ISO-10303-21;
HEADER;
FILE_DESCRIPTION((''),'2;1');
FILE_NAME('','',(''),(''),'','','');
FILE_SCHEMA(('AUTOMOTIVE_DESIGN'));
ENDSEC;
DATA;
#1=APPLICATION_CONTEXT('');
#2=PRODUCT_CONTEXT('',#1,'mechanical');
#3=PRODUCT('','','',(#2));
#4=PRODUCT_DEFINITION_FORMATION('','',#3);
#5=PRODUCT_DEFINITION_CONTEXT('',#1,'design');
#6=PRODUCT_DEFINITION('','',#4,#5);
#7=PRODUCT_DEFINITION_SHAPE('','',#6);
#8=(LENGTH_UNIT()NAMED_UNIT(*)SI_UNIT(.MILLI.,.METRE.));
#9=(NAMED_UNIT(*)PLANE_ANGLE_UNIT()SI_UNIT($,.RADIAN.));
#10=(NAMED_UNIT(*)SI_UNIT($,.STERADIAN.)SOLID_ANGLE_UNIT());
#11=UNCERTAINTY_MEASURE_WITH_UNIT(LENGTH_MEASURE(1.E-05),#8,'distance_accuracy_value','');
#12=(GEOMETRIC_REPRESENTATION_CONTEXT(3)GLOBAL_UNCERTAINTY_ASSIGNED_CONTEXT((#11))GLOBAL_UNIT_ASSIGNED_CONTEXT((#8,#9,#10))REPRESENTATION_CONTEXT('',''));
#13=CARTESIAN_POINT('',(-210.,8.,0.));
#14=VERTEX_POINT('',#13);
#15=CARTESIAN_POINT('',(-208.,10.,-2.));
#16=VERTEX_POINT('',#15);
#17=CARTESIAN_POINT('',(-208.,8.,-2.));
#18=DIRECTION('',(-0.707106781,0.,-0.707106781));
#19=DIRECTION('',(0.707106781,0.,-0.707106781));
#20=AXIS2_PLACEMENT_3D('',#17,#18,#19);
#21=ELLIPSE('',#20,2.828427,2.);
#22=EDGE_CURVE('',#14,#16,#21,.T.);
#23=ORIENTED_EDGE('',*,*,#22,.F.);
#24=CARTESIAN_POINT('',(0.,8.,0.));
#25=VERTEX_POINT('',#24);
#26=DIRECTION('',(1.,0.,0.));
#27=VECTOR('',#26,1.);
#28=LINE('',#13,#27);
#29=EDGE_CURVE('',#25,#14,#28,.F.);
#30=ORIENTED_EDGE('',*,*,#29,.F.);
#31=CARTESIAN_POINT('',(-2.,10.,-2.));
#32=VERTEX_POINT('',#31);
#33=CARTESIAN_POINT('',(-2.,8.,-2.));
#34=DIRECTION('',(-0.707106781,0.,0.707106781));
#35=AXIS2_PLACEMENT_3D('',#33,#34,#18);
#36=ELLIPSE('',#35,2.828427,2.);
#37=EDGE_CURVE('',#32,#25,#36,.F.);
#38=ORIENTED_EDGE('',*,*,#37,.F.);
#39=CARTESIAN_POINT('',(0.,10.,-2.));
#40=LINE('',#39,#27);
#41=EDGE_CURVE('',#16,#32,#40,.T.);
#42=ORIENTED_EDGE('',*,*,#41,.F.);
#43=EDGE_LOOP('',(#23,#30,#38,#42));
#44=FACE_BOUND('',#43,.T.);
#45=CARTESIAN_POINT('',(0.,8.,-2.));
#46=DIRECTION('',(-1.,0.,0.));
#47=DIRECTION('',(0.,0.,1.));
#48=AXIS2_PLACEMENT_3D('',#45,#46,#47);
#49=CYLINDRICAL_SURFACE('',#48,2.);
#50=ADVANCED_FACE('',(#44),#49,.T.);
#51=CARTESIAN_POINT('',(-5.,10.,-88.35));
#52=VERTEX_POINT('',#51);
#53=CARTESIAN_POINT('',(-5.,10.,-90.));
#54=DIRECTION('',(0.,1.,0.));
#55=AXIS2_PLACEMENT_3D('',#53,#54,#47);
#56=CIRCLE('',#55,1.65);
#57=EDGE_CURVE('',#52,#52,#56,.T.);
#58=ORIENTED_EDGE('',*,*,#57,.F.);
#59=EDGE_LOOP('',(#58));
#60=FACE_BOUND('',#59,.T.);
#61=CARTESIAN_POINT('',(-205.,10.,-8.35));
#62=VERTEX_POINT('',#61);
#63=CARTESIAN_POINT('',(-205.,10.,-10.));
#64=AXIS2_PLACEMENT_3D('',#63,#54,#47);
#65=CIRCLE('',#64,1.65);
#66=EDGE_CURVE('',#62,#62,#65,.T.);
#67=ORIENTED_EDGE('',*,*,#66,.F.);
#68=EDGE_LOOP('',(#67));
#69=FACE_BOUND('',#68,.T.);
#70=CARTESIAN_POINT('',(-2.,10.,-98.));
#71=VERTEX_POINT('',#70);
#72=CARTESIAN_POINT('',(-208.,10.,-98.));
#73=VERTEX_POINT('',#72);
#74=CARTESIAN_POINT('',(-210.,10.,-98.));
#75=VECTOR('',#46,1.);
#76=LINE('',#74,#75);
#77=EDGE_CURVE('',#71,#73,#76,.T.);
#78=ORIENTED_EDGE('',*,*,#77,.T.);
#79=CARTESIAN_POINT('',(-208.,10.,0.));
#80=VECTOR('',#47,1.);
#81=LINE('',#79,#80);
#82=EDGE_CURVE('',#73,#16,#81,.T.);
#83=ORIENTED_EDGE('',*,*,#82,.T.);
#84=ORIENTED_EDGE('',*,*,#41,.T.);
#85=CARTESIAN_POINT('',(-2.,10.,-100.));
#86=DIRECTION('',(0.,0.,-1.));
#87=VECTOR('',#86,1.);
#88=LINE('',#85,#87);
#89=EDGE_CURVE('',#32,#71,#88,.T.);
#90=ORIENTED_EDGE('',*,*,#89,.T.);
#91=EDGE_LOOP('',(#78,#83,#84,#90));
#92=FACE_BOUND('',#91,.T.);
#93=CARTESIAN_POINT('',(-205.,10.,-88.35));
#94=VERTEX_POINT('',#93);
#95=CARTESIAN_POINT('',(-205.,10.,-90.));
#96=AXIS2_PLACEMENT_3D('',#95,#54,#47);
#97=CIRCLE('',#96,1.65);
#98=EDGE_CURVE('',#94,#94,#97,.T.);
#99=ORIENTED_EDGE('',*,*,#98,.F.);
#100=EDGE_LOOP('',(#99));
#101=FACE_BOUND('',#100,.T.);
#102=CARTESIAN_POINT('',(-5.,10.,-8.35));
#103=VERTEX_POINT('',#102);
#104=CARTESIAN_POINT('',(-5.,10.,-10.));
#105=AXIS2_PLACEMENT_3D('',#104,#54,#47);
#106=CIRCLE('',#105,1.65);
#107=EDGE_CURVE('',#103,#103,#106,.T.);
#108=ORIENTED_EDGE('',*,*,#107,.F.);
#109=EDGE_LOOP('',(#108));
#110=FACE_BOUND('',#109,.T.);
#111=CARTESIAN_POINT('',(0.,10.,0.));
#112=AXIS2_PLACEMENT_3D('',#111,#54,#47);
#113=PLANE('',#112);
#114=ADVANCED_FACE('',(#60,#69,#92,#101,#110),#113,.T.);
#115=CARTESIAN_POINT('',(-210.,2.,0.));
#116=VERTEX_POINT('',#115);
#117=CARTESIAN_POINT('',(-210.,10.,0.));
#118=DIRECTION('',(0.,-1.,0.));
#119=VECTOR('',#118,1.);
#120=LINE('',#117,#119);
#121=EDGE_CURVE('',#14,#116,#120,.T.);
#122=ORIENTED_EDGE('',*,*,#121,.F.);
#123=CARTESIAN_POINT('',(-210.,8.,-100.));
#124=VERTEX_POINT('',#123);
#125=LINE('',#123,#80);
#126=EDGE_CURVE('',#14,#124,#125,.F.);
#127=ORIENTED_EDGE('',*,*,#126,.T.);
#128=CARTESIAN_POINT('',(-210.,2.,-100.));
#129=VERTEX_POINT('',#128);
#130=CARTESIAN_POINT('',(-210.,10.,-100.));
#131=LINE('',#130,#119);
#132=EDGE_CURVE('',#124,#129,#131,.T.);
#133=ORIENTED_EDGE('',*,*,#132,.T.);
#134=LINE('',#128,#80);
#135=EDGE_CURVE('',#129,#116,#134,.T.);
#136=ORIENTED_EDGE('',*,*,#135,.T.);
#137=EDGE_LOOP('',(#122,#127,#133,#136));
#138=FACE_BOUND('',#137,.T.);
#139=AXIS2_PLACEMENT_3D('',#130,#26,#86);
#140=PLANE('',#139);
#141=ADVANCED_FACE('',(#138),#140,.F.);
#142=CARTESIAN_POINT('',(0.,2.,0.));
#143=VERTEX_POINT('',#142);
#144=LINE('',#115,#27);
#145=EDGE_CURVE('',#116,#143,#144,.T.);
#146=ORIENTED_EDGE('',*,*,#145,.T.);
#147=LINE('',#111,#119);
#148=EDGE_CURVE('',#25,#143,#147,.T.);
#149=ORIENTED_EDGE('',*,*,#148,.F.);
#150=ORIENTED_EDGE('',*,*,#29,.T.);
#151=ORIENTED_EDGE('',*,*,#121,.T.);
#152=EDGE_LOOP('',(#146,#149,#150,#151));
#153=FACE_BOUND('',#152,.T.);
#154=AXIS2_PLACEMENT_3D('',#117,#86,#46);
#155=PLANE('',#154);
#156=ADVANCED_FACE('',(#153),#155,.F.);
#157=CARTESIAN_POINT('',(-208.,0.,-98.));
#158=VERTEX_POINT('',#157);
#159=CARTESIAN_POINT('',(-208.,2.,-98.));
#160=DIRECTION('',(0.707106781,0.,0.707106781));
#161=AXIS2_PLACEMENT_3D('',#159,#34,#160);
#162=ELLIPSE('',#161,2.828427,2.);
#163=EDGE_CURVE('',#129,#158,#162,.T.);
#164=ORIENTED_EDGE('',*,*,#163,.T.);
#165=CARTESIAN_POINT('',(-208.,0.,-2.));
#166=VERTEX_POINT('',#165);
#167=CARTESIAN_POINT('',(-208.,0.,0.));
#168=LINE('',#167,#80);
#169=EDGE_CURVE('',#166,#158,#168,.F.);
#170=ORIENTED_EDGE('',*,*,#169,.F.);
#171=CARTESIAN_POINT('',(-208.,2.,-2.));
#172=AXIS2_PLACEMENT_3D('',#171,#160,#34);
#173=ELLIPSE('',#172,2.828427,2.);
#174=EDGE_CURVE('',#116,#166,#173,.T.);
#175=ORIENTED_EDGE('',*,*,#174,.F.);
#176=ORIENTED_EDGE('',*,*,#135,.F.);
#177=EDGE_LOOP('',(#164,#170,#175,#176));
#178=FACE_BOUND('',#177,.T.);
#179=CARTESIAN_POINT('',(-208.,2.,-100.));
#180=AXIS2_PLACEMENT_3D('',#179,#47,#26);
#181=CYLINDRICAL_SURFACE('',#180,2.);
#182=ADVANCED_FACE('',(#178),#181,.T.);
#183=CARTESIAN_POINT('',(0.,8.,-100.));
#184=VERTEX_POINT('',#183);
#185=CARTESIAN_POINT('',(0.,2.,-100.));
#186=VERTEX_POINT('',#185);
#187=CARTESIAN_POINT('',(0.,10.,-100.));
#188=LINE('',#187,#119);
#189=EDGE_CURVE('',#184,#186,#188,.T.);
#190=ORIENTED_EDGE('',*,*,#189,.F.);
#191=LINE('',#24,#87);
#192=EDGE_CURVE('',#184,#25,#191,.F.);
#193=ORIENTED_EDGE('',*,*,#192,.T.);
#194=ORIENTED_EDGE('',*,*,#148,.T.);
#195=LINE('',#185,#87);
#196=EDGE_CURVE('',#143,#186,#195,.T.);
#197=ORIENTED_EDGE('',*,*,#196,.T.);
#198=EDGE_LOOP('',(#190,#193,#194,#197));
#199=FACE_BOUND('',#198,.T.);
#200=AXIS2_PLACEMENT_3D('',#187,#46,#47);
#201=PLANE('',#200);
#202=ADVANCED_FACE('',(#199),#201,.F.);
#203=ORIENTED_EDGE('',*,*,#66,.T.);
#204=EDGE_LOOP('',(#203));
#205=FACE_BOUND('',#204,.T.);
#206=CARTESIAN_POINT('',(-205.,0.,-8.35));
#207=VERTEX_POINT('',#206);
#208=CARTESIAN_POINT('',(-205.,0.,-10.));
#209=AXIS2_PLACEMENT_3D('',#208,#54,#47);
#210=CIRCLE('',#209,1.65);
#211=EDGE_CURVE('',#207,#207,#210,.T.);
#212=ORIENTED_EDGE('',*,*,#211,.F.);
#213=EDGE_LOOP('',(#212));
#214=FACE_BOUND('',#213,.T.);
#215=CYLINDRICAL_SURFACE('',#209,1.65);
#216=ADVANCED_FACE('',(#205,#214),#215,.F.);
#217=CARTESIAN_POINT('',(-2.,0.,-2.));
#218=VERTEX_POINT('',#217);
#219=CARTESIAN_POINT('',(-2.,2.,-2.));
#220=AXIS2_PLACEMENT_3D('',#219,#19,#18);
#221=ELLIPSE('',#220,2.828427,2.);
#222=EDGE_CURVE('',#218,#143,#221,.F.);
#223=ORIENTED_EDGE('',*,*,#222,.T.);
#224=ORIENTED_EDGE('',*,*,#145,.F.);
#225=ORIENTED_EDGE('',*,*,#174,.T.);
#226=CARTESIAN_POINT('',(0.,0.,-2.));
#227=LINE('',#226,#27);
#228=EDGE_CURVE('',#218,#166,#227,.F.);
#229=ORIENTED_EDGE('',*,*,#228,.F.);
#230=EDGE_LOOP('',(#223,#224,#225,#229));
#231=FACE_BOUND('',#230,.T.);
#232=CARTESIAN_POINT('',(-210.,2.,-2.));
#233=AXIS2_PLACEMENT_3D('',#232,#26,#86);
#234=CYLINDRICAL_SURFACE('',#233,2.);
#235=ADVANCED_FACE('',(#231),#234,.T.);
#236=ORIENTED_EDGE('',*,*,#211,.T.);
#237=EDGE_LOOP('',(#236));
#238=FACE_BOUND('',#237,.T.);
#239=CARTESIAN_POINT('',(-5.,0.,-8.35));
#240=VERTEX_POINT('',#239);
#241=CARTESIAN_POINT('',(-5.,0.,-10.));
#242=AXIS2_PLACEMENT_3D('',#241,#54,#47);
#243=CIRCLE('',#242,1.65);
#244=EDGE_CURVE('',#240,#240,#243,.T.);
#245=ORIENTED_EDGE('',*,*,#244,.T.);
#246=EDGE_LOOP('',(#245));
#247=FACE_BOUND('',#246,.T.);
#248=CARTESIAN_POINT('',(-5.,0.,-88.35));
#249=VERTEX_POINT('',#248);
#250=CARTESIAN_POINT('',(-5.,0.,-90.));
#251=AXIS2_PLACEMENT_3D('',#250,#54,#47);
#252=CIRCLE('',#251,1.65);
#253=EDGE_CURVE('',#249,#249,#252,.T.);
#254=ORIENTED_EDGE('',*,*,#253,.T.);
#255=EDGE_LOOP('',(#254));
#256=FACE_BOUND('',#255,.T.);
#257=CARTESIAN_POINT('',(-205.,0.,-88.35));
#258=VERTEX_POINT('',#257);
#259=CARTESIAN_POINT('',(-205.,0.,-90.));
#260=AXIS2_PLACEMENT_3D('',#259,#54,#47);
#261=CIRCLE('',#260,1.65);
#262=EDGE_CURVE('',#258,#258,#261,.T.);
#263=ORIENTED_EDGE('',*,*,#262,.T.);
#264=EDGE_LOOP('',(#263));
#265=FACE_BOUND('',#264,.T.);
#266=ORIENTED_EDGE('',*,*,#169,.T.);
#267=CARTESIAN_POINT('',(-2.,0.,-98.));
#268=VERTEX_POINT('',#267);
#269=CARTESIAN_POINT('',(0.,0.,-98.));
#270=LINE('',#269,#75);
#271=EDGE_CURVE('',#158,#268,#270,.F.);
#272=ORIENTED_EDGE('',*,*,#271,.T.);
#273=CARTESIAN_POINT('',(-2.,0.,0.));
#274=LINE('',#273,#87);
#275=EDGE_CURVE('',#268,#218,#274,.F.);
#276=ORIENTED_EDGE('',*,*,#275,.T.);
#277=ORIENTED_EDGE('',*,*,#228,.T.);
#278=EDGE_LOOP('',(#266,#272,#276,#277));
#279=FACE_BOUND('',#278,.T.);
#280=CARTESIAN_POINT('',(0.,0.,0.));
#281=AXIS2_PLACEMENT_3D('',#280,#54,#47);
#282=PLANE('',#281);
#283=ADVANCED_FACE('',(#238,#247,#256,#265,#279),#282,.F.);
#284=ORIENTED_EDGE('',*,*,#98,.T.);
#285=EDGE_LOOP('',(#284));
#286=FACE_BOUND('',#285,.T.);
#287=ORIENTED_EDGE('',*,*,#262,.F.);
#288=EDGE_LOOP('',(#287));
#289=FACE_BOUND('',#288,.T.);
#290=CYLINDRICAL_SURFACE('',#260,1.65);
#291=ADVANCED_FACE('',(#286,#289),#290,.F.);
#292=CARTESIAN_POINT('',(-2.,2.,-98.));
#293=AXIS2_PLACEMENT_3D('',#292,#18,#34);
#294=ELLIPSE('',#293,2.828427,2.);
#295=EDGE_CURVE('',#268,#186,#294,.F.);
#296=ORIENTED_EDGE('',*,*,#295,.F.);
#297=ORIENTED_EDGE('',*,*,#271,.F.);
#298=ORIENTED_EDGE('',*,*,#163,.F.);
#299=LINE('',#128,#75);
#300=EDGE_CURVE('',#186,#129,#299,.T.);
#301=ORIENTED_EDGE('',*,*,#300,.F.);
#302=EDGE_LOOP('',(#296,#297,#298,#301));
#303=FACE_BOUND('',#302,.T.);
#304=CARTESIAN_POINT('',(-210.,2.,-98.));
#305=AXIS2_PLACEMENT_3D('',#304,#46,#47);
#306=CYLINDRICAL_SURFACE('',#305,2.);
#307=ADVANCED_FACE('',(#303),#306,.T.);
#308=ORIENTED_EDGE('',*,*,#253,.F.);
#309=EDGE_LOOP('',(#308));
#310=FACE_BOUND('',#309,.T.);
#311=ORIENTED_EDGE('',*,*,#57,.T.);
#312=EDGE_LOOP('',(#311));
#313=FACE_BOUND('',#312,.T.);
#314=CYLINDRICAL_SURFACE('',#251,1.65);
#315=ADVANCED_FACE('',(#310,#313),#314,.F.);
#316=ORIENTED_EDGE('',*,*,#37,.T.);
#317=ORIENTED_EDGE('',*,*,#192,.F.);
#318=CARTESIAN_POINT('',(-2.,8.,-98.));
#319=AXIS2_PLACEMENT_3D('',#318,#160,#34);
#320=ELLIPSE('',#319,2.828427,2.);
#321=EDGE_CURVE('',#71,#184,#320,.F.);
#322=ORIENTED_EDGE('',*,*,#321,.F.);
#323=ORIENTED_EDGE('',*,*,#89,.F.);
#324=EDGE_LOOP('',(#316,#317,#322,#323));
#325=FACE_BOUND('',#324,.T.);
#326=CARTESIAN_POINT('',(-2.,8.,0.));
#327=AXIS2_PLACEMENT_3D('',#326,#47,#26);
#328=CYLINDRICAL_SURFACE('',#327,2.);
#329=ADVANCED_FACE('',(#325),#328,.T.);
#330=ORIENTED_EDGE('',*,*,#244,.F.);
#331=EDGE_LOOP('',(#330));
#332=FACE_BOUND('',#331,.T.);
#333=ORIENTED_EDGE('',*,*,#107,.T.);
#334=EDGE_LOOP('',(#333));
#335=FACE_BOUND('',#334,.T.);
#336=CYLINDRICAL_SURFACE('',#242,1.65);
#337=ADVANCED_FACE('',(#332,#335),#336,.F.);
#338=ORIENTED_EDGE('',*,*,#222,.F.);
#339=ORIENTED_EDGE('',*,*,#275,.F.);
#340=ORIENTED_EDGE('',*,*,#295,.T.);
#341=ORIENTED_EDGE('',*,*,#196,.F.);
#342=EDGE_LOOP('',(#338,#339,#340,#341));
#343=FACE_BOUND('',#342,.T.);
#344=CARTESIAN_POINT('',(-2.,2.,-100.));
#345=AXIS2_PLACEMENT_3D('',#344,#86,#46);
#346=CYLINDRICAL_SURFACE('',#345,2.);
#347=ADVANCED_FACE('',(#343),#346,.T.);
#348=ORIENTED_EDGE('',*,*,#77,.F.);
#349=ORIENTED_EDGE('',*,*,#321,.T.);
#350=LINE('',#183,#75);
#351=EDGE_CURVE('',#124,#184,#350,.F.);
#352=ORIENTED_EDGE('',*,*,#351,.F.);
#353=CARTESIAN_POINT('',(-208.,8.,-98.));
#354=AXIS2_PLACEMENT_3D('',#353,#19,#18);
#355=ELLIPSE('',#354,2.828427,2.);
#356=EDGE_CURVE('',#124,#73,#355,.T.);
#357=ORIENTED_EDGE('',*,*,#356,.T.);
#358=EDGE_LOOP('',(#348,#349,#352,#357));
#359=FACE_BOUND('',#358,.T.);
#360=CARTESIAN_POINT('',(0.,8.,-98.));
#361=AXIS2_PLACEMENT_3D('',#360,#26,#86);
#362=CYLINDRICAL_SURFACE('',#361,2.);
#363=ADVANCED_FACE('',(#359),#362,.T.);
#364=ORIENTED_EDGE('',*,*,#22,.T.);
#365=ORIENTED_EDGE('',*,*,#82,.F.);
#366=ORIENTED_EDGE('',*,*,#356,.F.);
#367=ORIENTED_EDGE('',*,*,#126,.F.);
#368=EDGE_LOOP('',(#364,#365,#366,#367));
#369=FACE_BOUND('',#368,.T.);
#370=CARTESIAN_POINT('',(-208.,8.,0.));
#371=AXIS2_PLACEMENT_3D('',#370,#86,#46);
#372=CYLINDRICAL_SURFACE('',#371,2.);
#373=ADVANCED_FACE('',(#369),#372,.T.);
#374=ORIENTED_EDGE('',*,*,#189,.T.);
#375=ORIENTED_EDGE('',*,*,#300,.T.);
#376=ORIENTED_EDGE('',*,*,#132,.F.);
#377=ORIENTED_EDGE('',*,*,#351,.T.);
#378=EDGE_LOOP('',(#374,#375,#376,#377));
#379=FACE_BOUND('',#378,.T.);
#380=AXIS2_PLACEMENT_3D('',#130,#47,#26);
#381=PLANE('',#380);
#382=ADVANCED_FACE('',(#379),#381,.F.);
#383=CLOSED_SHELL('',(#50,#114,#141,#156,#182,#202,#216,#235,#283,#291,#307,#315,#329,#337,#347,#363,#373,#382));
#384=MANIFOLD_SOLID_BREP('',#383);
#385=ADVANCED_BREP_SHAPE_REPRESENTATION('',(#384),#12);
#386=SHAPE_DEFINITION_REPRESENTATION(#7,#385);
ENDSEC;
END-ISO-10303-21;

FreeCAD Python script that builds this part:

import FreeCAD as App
import Part
import Sketcher


def edges_at(feature, points):
    """Names of the edges that pass closest to the given points."""
    edges = feature.Shape.Edges
    near = lambda p: min(range(len(edges)), key=lambda i: edges[i].distToShape(Part.Vertex(*p))[0])
    return sorted({f"Edge{near(p) + 1}" for p in points})

doc = App.newDocument("Part")
body = doc.addObject("PartDesign::Body", "Body")

sketch1 = body.newObject("Sketcher::SketchObject", "Sketch")
sketch1.AttachmentSupport = (doc.getObject("XZ_Plane"), [""])
sketch1.MapMode = "FlatFace"
sketch1.addGeometry(Part.LineSegment(App.Vector(-210, -100, 0), App.Vector(-210, 0, 0)), False)
sketch1.addGeometry(Part.LineSegment(App.Vector(-210, 0, 0), App.Vector(0, 0, 0)), False)
sketch1.addGeometry(Part.LineSegment(App.Vector(0, 0, 0), App.Vector(0, -100, 0)), False)
sketch1.addGeometry(Part.LineSegment(App.Vector(0, -100, 0), App.Vector(-210, -100, 0)), False)
sketch1.addConstraint(Sketcher.Constraint("Coincident", 0, 2, 1, 1))
sketch1.addConstraint(Sketcher.Constraint("Coincident", 1, 2, 2, 1))
sketch1.addConstraint(Sketcher.Constraint("Coincident", 2, 2, 3, 1))
sketch1.addConstraint(Sketcher.Constraint("Coincident", 3, 2, 0, 1))
sketch1.addConstraint(Sketcher.Constraint("Vertical", 0))
sketch1.addConstraint(Sketcher.Constraint("Horizontal", 1))
sketch1.addConstraint(Sketcher.Constraint("Vertical", 2))
sketch1.addConstraint(Sketcher.Constraint("Horizontal", 3))
sketch1.addConstraint(Sketcher.Constraint("Coincident", 1, 2, -1, 1))
sketch1.addConstraint(Sketcher.Constraint("DistanceX", 1, 1, 1, 2, 210.0))
sketch1.addConstraint(Sketcher.Constraint("DistanceY", 0, 1, 0, 2, 100.0))
pad1 = body.newObject("PartDesign::Pad", "Pad")
pad1.Profile = sketch1
pad1.Length = 10
pad1.Reversed = True
doc.recompute()

fillet = body.newObject("PartDesign::Fillet", "Fillet")
fillet.Base = (pad1, edges_at(pad1, [
    (0, 10, -50),
    (-105, 10, -100),
    (-210, 10, -50),
    (-105, 0, -100),
    (0, 0, -50),
    (-105, 0, 0),
    (-210, 0, -50),
    (-105, 10, 0),
]))
fillet.Radius = 2

sketch2 = body.newObject("Sketcher::SketchObject", "Sketch001")
sketch2.AttachmentSupport = (doc.getObject("XZ_Plane"), [""])
sketch2.MapMode = "FlatFace"
sketch2.AttachmentOffset = App.Placement(App.Vector(0, 0, -10), App.Rotation())
sketch2.addGeometry(Part.Circle(App.Vector(-205, -10, 0), App.Vector(0, 0, 1), 1.6), False)
sketch2.addGeometry(Part.Circle(App.Vector(-205, -90, 0), App.Vector(0, 0, 1), 1.6), False)
sketch2.addGeometry(Part.Circle(App.Vector(-5, -90, 0), App.Vector(0, 0, 1), 1.6), False)
sketch2.addGeometry(Part.Circle(App.Vector(-5, -10, 0), App.Vector(0, 0, 1), 1.6), False)
sketch2.addConstraint(Sketcher.Constraint("Equal", 0, 1))
sketch2.addConstraint(Sketcher.Constraint("Equal", 1, 2))
sketch2.addConstraint(Sketcher.Constraint("Equal", 2, 3))
sketch2.addConstraint(Sketcher.Constraint("Horizontal", 1, 3, 2, 3))
sketch2.addConstraint(Sketcher.Constraint("Horizontal", 0, 3, 3, 3))
sketch2.addConstraint(Sketcher.Constraint("Vertical", 0, 3, 1, 3))
sketch2.addConstraint(Sketcher.Constraint("Vertical", 2, 3, 3, 3))
sketch2.addConstraint(Sketcher.Constraint("Diameter", 0, 3.3))
sketch2.addConstraint(Sketcher.Constraint("DistanceX", 0, 3, -1, 1, 205.0))
sketch2.addConstraint(Sketcher.Constraint("DistanceY", 0, 3, -1, 1, 10.0))
sketch2.addConstraint(Sketcher.Constraint("DistanceY", 1, 3, -1, 1, 90.0))
sketch2.addConstraint(Sketcher.Constraint("DistanceX", 2, 3, -1, 1, 5.0))
pocket1 = body.newObject("PartDesign::Pocket", "Pocket")
pocket1.Profile = sketch2
pocket1.Type = "ThroughAll"
pocket1.Reversed = True

doc.recompute()
